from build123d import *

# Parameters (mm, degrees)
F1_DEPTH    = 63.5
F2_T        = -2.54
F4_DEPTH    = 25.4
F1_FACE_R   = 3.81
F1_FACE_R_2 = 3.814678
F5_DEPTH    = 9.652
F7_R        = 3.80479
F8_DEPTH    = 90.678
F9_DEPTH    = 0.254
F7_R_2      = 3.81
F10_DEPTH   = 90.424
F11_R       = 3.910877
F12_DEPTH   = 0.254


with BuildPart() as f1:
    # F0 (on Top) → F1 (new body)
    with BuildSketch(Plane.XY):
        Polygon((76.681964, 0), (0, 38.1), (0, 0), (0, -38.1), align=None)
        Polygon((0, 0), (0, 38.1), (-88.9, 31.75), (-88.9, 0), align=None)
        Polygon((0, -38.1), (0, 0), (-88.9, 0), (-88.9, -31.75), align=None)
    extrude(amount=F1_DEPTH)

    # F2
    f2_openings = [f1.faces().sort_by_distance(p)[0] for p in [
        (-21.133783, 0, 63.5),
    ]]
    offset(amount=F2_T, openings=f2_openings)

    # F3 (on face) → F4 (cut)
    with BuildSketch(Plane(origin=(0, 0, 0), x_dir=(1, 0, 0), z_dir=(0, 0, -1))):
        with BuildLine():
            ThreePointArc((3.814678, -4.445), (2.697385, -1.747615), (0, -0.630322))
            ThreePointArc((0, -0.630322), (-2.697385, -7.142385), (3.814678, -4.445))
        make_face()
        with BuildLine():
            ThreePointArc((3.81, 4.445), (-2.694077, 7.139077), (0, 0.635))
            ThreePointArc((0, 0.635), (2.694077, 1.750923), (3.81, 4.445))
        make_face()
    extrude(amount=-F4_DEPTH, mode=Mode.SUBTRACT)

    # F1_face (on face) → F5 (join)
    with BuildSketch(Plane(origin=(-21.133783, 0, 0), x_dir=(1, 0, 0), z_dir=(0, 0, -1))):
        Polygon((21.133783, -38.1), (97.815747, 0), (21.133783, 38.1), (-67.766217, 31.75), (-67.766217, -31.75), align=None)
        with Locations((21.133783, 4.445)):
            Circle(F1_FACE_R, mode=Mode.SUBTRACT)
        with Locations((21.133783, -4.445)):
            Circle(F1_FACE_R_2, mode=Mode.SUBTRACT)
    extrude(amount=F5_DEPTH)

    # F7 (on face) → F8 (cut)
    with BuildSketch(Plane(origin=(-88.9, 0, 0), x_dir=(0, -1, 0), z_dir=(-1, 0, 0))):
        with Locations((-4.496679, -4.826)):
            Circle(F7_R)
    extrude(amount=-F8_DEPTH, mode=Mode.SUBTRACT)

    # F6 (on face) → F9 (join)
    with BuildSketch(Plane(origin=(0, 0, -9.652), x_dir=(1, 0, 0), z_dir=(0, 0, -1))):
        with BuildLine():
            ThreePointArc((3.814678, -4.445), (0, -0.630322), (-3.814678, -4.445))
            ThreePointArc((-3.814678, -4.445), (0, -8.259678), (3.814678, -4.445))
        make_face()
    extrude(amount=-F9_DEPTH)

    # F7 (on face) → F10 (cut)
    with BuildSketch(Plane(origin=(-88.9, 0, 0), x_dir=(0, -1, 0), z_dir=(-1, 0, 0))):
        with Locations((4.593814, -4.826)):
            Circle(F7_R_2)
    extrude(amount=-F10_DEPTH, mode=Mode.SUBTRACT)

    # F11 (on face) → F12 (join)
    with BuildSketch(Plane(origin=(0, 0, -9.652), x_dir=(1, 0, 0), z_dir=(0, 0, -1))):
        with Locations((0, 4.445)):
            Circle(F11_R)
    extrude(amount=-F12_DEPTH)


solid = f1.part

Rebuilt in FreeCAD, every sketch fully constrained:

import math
import FreeCAD as App
import Part
import Sketcher
from FreeCAD import Vector
Q = App.Units.Quantity


def faces_at(feature, points):
    """Names of the faces that lie closest to the given points."""
    faces = feature.Shape.Faces
    near = lambda p: min(range(len(faces)), key=lambda i: faces[i].distToShape(Part.Vertex(*p))[0])
    return sorted({f"Face{near(p) + 1}" for p in points})

doc = App.newDocument("Part")
body = doc.addObject("PartDesign::Body", "Body")

sketch1 = doc.addObject("Sketcher::SketchObject", "Sketch")
body.addObject(sketch1)
sketch1.AttachmentSupport = (doc.XY_Plane, [""])
sketch1.MapMode = "FlatFace"
sketch1.addGeometry([
    Part.LineSegment(Vector(77, 0, 0), Vector(0, 38, 0)),
    Part.LineSegment(Vector(0, 38, 0), Vector(-89, 32, 0)),
    Part.LineSegment(Vector(-89, 32, 0), Vector(-89, -32, 0)),
    Part.LineSegment(Vector(-89, -32, 0), Vector(0, -38, 0)),
    Part.LineSegment(Vector(0, -38, 0), Vector(77, 0, 0)),
], False)
sketch1.addConstraint([
    Sketcher.Constraint("Coincident", 0, 2, 1, 1),
    Sketcher.Constraint("Coincident", 1, 2, 2, 1),
    Sketcher.Constraint("Coincident", 2, 2, 3, 1),
    Sketcher.Constraint("Coincident", 3, 2, 4, 1),
    Sketcher.Constraint("Coincident", 4, 2, 0, 1),
    Sketcher.Constraint("Vertical", 2),
    Sketcher.Constraint("Symmetric", 0, 2, 3, 2, -1, 1),
    Sketcher.Constraint("PointOnObject", 0, 2, -2),
    Sketcher.Constraint("PointOnObject", 4, 2, -1),
    Sketcher.Constraint("Equal", 1, 3),
    Sketcher.Constraint("DistanceY", 2, 2, 2, 1, Q("2.5 in")),
    Sketcher.Constraint("DistanceY", 3, 2, 0, 2, Q("3 in")),
    Sketcher.Constraint("DistanceX", 1, 2, -1, 1, Q("3.5 in")),
    Sketcher.Constraint("Distance", 0, Q("85.625543 mm")),
])
pad1 = doc.addObject("PartDesign::Pad", "Pad")
body.addObject(pad1)
pad1.Profile = sketch1
pad1.Length = Q("2.5 in")
doc.recompute()

thickness = doc.addObject("PartDesign::Thickness", "Thickness")
body.addObject(thickness)
thickness.Base = (pad1, faces_at(pad1, [(-6.109, 0, 63.5)]))
thickness.Value = Q("0.1 in")
thickness.Reversed = True
thickness.Join = "Arc"

sketch2 = doc.addObject("Sketcher::SketchObject", "Sketch001")
body.addObject(sketch2)
sketch2.AttachmentSupport = (doc.XY_Plane, [""])
sketch2.MapMode = "FlatFace"
sketch2.addGeometry([
    Part.ArcOfCircle(Part.Circle(Vector(0, 4.4, 0), Vector(0, 0, 1), 3.8), math.radians(-90), math.radians(0)),
    Part.ArcOfCircle(Part.Circle(Vector(0, 4.4, 0), Vector(0, 0, 1), 3.8), math.radians(0), math.radians(270)),
    Part.ArcOfCircle(Part.Circle(Vector(0, -4.4, 0), Vector(0, 0, 1), 3.8), math.radians(90), math.radians(360)),
    Part.ArcOfCircle(Part.Circle(Vector(0, -4.4, 0), Vector(0, 0, 1), 3.8), math.radians(0), math.radians(90)),
], False)
sketch2.addConstraint([
    Sketcher.Constraint("Tangent", 0, 1, 1, 2),
    Sketcher.Constraint("Coincident", 1, 1, 0, 2),
    Sketcher.Constraint("Tangent", 2, 1, 3, 2),
    Sketcher.Constraint("Coincident", 3, 1, 2, 2),
    Sketcher.Constraint("Symmetric", 0, 3, 2, 3, -1, 1),
    Sketcher.Constraint("PointOnObject", 0, 3, -2),
    Sketcher.Constraint("PointOnObject", 0, 1, -2),
    Sketcher.Constraint("PointOnObject", 2, 1, -2),
    Sketcher.Constraint("Horizontal", 0, 3, 1, 1),
    Sketcher.Constraint("Horizontal", 2, 3, 3, 1),
    Sketcher.Constraint("Radius", 2, Q("0.15 in")),
    Sketcher.Constraint("DistanceY", 2, 1, 0, 3, Q("0.2 in")),
    Sketcher.Constraint("Radius", 1, Q("3.814678 mm")),
])
pocket1 = doc.addObject("PartDesign::Pocket", "Pocket")
body.addObject(pocket1)
pocket1.Profile = sketch2
pocket1.Length = Q("1 in")
pocket1.Reversed = True

sketch3 = doc.addObject("Sketcher::SketchObject", "Sketch002")
body.addObject(sketch3)
sketch3.AttachmentSupport = (doc.XY_Plane, [""])
sketch3.MapMode = "FlatFace"
sketch3.addGeometry([
    Part.LineSegment(Vector(0, 38.1, 0), Vector(76.7, 0, 0)),
    Part.LineSegment(Vector(76.7, 0, 0), Vector(0, -38.1, 0)),
    Part.LineSegment(Vector(0, -38.1, 0), Vector(-88.9, -31.8, 0)),
    Part.LineSegment(Vector(-88.9, -31.8, 0), Vector(-88.9, 31.8, 0)),
    Part.LineSegment(Vector(-88.9, 31.8, 0), Vector(0, 38.1, 0)),
    Part.Circle(Vector(0, 4.4, 0), Vector(0, 0, 1), 3.8),
    Part.Circle(Vector(0, -4.4, 0), Vector(0, 0, 1), 3.8),
], False)
sketch3.addConstraint([
    Sketcher.Constraint("Coincident", 0, 2, 1, 1),
    Sketcher.Constraint("Coincident", 1, 2, 2, 1),
    Sketcher.Constraint("Coincident", 2, 2, 3, 1),
    Sketcher.Constraint("Coincident", 3, 2, 4, 1),
    Sketcher.Constraint("Coincident", 4, 2, 0, 1),
    Sketcher.Constraint("Vertical", 3),
    Sketcher.Constraint("Symmetric", 5, 3, 6, 3, -1, 1),
    Sketcher.Constraint("Symmetric", 1, 2, 4, 2, -1, 1),
    Sketcher.Constraint("PointOnObject", 5, 3, -2),
    Sketcher.Constraint("PointOnObject", 0, 2, -1),
    Sketcher.Constraint("PointOnObject", 1, 2, -2),
    Sketcher.Constraint("Equal", 2, 4),
    Sketcher.Constraint("Diameter", 6, Q("0.3 in")),
    Sketcher.Constraint("DistanceY", 3, 1, 3, 2, Q("2.5 in")),
    Sketcher.Constraint("DistanceY", 1, 2, 4, 2, Q("3 in")),
    Sketcher.Constraint("DistanceX", 2, 2, -1, 1, Q("3.5 in")),
    Sketcher.Constraint("DistanceY", 6, 3, 5, 3, Q("0.35 in")),
    Sketcher.Constraint("Diameter", 5, Q("7.629356 mm")),
    Sketcher.Constraint("Distance", 0, Q("85.625543 mm")),
])
pad2 = doc.addObject("PartDesign::Pad", "Pad001")
body.addObject(pad2)
pad2.Profile = sketch3
pad2.Length = Q("0.38 in")
pad2.Reversed = True

sketch4 = doc.addObject("Sketcher::SketchObject", "Sketch003")
body.addObject(sketch4)
sketch4.AttachmentSupport = (doc.YZ_Plane, [""])
sketch4.MapMode = "FlatFace"
sketch4.AttachmentOffset = App.Placement(Vector(0, 0, -3.5 * 25.4), App.Rotation())
sketch4.addGeometry(Part.Circle(Vector(4.5, -4.8, 0), Vector(0, 0, 1), 3.8), False)
sketch4.addConstraint([
    Sketcher.Constraint("DistanceY", 0, 3, -1, 1, Q("0.19 in")),
    Sketcher.Constraint("Diameter", 0, Q("7.60958 mm")),
    Sketcher.Constraint("DistanceX", -1, 1, 0, 3, Q("4.496679 mm")),
])
pocket2 = doc.addObject("PartDesign::Pocket", "Pocket001")
body.addObject(pocket2)
pocket2.Profile = sketch4
pocket2.Length = Q("3.57 in")
pocket2.Reversed = True

sketch5 = doc.addObject("Sketcher::SketchObject", "Sketch004")
body.addObject(sketch5)
sketch5.AttachmentSupport = (doc.XY_Plane, [""])
sketch5.MapMode = "FlatFace"
sketch5.AttachmentOffset = App.Placement(Vector(0, 0, -0.38 * 25.4), App.Rotation())
sketch5.addGeometry(Part.Circle(Vector(0, 4.4, 0), Vector(0, 0, 1), 3.8), False)
sketch5.addConstraint([
    Sketcher.Constraint("PointOnObject", 0, 3, -2),
    Sketcher.Constraint("DistanceY", -1, 1, 0, 3, Q("0.175 in")),
    Sketcher.Constraint("Diameter", 0, Q("7.629356 mm")),
])
pad3 = doc.addObject("PartDesign::Pad", "Pad002")
body.addObject(pad3)
pad3.Profile = sketch5
pad3.Length = Q("0.01 in")

sketch6 = doc.addObject("Sketcher::SketchObject", "Sketch005")
body.addObject(sketch6)
sketch6.AttachmentSupport = (doc.YZ_Plane, [""])
sketch6.MapMode = "FlatFace"
sketch6.AttachmentOffset = App.Placement(Vector(0, 0, -3.5 * 25.4), App.Rotation())
sketch6.addGeometry(Part.Circle(Vector(-4.6, -4.8, 0), Vector(0, 0, 1), 3.8), False)
sketch6.addConstraint([
    Sketcher.Constraint("Diameter", 0, Q("0.3 in")),
    Sketcher.Constraint("DistanceY", 0, 3, -1, 1, Q("0.19 in")),
    Sketcher.Constraint("DistanceX", 0, 3, -1, 1, Q("4.593814 mm")),
])
pocket3 = doc.addObject("PartDesign::Pocket", "Pocket002")
body.addObject(pocket3)
pocket3.Profile = sketch6
pocket3.Length = Q("3.56 in")
pocket3.Reversed = True

sketch7 = doc.addObject("Sketcher::SketchObject", "Sketch006")
body.addObject(sketch7)
sketch7.AttachmentSupport = (doc.XY_Plane, [""])
sketch7.MapMode = "FlatFace"
sketch7.AttachmentOffset = App.Placement(Vector(0, 0, -0.38 * 25.4), App.Rotation())
sketch7.addGeometry(Part.Circle(Vector(0, -4.4, 0), Vector(0, 0, 1), 3.9), False)
sketch7.addConstraint([
    Sketcher.Constraint("PointOnObject", 0, 3, -2),
    Sketcher.Constraint("DistanceY", 0, 3, -1, 1, Q("0.175 in")),
    Sketcher.Constraint("Diameter", 0, Q("7.821754 mm")),
])
pad4 = doc.addObject("PartDesign::Pad", "Pad003")
body.addObject(pad4)
pad4.Profile = sketch7
pad4.Length = Q("0.01 in")

doc.recompute()
